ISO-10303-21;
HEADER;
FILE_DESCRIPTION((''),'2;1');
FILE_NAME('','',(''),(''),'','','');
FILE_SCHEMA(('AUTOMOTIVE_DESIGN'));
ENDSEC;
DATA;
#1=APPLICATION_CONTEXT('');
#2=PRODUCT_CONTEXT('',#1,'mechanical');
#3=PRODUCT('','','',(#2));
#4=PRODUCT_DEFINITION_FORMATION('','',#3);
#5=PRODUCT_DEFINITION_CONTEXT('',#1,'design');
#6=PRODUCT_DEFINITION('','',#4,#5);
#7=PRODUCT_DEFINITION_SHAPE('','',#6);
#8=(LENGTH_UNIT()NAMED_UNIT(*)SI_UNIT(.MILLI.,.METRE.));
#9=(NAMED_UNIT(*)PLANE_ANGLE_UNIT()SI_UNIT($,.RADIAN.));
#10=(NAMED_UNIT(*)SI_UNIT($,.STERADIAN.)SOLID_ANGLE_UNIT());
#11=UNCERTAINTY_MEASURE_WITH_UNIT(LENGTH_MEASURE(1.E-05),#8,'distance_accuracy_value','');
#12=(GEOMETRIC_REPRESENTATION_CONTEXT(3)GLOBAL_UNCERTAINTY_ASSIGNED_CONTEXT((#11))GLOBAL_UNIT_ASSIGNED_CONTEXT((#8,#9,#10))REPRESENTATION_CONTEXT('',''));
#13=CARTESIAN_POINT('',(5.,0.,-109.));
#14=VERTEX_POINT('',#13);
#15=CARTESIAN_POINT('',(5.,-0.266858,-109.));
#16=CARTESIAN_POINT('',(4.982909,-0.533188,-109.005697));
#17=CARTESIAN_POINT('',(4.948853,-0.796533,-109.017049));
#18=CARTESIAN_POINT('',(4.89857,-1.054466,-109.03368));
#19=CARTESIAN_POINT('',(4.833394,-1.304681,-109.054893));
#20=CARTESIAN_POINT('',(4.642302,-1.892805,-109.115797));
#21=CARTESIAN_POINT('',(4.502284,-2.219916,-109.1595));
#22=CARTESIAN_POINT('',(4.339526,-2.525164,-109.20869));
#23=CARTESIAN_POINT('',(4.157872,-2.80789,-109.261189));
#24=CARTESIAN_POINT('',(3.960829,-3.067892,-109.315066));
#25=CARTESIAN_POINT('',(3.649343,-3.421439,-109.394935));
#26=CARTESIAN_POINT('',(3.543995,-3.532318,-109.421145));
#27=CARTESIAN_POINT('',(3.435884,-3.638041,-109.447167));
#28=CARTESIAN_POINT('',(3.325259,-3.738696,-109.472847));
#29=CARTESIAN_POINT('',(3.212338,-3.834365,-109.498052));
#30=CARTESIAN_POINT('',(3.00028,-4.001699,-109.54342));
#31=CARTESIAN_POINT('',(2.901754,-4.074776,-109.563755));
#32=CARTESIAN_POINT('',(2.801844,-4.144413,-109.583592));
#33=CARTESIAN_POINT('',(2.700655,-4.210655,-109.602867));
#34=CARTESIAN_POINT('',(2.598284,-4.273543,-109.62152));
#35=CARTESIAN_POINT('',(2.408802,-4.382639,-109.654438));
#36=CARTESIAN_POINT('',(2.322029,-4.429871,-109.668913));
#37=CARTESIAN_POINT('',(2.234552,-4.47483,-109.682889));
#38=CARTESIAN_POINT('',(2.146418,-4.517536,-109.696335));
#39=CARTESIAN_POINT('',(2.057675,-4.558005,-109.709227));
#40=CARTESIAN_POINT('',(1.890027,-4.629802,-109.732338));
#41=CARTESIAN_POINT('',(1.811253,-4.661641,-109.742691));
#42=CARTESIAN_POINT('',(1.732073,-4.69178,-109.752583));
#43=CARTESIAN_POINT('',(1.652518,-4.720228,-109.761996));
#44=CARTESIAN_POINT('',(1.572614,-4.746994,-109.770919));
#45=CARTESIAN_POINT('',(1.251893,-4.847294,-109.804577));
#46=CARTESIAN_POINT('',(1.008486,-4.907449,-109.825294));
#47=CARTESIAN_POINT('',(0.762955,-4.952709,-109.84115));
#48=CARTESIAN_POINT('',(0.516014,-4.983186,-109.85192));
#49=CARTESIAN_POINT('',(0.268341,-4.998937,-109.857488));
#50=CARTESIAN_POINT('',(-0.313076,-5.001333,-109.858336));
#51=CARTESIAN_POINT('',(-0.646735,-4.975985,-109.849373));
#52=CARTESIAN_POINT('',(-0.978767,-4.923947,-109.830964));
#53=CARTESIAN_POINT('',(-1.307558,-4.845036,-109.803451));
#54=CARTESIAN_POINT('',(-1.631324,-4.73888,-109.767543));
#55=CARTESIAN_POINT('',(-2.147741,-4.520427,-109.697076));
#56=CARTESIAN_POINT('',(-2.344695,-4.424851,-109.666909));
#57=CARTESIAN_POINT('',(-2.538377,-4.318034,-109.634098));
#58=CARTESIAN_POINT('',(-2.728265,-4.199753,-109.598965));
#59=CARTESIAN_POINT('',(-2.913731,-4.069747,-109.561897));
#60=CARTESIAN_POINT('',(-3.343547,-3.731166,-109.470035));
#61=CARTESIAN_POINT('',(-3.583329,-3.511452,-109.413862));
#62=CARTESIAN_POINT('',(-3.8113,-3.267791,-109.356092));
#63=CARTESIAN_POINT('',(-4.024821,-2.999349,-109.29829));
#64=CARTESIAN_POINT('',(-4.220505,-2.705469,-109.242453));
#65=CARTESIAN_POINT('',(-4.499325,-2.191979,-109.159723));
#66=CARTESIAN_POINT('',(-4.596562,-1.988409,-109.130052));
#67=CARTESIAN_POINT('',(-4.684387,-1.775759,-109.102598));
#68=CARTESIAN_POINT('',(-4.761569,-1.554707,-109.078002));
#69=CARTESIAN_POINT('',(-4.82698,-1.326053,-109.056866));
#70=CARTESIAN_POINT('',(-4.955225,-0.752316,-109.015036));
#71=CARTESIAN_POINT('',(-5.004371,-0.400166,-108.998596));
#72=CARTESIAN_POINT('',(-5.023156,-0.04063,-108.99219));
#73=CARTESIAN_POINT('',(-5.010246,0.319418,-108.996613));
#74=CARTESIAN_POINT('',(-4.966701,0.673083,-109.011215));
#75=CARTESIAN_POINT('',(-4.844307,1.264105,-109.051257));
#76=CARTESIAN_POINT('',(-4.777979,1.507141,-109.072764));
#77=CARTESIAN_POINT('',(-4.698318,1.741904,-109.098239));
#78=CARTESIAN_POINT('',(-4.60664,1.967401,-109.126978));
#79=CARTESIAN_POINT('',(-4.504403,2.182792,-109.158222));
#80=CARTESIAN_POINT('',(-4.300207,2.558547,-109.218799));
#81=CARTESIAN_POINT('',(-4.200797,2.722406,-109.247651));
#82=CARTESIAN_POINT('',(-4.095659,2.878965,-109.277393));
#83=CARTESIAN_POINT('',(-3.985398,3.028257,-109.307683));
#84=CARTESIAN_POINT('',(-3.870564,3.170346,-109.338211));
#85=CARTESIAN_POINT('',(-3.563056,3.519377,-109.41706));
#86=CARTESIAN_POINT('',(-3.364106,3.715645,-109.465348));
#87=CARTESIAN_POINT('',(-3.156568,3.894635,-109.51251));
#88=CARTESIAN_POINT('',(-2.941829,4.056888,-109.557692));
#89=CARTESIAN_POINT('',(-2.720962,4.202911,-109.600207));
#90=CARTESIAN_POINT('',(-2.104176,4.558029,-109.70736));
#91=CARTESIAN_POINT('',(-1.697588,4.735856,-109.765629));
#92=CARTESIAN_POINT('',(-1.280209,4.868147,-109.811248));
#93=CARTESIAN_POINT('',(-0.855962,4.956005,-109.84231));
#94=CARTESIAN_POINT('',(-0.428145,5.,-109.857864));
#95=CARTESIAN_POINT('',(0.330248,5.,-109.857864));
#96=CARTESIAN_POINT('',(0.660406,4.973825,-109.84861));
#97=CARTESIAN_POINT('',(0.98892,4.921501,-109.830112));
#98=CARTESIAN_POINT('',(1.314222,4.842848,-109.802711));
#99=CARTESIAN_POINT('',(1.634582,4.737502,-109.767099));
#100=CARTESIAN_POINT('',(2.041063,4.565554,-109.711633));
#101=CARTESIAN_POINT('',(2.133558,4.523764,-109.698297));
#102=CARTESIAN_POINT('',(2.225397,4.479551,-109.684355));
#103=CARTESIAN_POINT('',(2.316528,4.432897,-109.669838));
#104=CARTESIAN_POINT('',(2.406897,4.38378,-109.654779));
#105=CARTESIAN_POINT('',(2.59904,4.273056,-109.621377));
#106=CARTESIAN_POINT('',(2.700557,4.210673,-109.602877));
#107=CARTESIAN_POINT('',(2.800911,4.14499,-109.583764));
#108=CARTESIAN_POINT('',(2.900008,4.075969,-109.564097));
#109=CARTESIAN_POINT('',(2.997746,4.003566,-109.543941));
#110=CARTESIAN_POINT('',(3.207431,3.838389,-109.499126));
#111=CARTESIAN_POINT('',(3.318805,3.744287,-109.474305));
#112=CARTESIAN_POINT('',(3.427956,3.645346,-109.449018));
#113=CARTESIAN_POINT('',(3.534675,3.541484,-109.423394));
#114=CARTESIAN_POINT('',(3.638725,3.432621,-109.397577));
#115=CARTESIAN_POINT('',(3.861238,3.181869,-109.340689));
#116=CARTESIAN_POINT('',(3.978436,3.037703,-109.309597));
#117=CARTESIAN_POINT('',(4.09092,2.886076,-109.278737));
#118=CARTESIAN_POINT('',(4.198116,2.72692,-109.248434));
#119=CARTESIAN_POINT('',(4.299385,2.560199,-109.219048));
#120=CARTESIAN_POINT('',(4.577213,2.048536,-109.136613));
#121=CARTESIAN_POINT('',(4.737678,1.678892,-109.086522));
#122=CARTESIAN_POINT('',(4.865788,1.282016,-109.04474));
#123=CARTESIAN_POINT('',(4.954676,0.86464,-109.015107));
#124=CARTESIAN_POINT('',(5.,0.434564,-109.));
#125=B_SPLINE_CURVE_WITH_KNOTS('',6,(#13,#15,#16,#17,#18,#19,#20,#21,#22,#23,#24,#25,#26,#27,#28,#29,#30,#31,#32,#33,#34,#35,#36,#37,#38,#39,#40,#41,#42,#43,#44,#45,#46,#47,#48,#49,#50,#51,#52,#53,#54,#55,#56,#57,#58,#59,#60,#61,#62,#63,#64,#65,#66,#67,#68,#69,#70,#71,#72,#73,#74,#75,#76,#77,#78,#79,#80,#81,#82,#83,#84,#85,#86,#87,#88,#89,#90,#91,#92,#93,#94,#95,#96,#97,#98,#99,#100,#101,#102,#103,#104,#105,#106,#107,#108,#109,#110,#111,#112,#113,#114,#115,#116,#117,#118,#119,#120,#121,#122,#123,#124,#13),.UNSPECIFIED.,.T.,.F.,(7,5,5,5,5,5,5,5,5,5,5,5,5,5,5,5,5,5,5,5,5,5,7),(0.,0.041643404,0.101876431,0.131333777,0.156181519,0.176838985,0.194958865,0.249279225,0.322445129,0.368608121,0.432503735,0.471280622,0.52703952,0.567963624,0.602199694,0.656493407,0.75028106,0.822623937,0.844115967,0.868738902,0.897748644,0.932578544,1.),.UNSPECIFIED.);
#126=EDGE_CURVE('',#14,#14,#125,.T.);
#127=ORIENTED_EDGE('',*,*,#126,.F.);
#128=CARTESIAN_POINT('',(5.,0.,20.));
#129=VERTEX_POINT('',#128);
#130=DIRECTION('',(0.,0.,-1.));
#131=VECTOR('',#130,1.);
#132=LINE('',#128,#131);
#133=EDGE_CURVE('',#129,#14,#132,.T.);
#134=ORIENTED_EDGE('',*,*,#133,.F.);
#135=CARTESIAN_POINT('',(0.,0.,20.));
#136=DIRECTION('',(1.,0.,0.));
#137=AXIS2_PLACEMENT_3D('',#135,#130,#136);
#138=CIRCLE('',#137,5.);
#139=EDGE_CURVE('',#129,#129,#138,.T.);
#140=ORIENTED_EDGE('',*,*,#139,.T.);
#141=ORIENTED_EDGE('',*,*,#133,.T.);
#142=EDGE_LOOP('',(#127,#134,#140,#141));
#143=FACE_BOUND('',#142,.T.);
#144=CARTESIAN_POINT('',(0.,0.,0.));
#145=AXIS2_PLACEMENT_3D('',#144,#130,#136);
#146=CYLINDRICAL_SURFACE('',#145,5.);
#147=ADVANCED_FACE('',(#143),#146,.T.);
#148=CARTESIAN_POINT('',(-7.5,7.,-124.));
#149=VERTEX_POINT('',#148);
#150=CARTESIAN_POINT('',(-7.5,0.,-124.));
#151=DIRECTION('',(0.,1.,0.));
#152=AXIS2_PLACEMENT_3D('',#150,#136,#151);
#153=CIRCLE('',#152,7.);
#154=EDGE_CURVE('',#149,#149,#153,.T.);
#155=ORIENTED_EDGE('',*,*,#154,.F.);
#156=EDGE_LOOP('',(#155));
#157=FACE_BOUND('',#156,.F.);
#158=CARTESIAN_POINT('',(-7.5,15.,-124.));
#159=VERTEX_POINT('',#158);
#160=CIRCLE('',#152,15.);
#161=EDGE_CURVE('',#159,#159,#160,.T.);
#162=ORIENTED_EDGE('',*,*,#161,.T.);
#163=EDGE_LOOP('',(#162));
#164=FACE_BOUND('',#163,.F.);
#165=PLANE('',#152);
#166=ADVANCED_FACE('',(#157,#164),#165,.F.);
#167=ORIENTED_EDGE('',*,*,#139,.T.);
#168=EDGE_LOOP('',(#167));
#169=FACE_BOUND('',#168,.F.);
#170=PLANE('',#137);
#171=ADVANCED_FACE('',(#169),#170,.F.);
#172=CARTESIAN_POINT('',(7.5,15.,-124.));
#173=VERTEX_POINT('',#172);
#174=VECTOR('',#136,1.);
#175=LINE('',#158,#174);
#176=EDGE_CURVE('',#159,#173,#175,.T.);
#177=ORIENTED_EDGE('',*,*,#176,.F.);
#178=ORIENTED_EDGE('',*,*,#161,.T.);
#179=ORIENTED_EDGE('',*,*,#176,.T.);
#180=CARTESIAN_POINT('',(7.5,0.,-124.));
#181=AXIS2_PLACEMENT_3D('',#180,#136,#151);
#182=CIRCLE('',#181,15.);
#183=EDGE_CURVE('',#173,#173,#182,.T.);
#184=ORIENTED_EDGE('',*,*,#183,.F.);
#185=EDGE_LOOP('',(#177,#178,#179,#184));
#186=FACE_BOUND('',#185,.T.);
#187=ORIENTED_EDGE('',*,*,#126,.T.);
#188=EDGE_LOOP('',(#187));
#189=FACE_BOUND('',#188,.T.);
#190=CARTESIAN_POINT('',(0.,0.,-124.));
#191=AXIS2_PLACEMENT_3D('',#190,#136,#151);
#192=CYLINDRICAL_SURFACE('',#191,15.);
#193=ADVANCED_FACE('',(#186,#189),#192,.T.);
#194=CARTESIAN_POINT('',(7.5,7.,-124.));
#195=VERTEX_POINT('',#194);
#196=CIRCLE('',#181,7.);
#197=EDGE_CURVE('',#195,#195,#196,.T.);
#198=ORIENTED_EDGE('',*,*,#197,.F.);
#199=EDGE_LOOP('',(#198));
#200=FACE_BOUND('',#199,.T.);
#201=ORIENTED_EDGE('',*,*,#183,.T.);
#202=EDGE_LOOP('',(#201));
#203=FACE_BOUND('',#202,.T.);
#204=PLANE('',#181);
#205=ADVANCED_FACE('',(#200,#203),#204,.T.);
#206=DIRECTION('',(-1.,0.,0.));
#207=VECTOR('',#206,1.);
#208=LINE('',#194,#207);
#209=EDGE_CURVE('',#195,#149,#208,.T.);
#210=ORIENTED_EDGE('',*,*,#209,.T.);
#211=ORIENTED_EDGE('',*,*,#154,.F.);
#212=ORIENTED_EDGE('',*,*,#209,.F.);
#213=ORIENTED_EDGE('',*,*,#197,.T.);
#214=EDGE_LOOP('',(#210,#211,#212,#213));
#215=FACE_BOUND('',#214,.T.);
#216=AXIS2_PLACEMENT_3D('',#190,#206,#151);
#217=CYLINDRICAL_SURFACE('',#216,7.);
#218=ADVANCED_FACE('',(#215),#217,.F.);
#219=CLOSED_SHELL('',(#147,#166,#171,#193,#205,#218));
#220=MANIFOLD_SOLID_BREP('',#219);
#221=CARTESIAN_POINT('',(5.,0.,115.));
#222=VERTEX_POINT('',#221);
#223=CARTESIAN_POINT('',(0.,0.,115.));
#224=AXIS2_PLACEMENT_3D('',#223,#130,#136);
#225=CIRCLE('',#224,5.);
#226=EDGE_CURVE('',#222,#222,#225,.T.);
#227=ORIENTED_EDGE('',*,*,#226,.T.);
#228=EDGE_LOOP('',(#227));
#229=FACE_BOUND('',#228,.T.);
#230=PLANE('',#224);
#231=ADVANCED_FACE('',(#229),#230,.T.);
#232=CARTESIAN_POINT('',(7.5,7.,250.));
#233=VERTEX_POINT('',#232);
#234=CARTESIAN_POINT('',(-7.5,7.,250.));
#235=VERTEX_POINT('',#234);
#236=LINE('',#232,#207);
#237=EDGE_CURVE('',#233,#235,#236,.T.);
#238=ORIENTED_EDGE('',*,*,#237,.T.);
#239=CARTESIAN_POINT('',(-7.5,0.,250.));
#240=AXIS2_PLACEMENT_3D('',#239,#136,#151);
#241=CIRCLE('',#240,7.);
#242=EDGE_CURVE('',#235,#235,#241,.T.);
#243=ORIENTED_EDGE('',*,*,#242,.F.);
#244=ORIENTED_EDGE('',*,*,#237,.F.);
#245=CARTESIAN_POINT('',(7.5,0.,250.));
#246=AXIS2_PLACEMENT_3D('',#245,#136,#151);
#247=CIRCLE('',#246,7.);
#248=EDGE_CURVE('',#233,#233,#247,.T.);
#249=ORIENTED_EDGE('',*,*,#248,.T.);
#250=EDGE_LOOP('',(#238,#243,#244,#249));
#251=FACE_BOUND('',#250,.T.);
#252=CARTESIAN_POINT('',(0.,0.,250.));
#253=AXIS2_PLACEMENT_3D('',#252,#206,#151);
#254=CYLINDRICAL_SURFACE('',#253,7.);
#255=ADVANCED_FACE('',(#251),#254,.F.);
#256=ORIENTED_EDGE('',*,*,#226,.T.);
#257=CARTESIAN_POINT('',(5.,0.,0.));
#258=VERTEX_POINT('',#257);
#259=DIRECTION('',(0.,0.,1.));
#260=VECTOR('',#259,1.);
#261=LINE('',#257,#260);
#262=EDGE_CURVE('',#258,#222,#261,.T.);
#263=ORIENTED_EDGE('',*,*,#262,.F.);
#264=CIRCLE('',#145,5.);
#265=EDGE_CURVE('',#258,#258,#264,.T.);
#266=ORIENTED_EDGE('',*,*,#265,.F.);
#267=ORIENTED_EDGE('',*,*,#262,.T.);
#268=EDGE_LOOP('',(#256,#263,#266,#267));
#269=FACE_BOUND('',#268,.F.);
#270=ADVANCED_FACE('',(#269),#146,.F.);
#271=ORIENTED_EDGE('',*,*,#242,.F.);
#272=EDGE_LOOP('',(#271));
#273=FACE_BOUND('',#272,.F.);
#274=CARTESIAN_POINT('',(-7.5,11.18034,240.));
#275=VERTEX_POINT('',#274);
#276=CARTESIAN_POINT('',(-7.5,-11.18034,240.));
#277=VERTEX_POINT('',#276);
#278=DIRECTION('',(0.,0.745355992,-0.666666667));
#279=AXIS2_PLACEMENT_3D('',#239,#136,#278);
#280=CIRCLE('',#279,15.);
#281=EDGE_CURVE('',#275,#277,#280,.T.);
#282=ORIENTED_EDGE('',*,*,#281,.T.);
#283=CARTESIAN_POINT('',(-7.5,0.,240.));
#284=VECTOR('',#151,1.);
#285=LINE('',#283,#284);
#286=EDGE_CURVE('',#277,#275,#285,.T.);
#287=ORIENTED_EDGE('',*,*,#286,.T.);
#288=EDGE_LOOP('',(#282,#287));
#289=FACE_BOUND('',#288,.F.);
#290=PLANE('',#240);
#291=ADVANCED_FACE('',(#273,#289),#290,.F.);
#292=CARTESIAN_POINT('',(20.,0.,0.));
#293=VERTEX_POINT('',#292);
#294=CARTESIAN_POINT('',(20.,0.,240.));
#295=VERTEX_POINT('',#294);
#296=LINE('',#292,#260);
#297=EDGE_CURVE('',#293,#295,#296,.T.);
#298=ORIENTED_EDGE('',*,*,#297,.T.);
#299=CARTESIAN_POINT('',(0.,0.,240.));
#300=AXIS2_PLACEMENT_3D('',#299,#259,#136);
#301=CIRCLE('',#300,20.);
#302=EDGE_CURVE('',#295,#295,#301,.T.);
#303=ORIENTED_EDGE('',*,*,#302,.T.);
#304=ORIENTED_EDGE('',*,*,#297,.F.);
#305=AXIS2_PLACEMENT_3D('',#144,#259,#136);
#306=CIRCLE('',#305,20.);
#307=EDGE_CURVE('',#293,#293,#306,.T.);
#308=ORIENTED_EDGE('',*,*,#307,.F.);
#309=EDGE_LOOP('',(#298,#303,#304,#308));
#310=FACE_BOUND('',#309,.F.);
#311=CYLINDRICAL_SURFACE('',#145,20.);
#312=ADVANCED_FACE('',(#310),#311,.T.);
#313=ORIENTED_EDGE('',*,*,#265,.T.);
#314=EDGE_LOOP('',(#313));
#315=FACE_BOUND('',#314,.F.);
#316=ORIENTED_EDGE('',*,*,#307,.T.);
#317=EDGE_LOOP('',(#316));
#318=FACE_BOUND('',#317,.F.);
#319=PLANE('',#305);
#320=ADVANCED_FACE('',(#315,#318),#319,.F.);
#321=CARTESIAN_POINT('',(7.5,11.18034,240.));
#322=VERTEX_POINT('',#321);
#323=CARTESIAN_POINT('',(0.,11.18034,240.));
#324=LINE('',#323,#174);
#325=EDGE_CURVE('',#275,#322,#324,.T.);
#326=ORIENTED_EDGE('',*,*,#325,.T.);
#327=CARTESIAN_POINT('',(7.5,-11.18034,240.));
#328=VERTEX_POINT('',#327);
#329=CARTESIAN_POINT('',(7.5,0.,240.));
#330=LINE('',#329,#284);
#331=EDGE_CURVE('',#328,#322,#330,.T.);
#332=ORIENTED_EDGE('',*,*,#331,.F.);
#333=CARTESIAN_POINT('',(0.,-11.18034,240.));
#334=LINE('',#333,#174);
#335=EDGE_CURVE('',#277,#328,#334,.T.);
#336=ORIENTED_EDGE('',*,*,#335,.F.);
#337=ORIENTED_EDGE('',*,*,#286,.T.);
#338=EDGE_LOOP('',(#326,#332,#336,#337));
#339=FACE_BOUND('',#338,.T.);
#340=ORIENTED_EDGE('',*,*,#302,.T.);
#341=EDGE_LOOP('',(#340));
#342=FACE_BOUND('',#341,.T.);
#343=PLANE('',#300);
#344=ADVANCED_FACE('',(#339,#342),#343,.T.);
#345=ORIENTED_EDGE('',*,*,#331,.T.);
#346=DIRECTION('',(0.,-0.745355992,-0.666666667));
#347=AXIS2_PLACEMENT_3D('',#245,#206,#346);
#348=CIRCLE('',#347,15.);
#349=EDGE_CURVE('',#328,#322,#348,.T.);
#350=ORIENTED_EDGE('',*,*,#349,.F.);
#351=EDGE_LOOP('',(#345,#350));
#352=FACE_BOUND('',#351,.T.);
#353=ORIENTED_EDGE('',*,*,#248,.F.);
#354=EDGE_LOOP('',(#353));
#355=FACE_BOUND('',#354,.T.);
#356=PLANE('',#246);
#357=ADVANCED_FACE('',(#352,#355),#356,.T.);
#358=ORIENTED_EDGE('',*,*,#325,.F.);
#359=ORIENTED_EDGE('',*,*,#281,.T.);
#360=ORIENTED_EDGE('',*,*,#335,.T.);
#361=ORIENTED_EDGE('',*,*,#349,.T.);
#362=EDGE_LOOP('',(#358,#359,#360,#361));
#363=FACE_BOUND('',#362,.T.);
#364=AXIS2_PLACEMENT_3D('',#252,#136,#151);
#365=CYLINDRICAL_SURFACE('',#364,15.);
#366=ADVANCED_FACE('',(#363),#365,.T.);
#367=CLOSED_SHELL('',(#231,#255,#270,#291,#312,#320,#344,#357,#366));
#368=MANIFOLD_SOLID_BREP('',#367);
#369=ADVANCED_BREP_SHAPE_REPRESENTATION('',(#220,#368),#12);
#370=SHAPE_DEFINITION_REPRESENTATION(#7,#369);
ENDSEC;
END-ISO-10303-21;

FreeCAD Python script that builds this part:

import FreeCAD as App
import Part
import Sketcher
from FreeCAD import Vector
Q = App.Units.Quantity

doc = App.newDocument("Part")
body = doc.addObject("PartDesign::Body", "Body")

# Sketch on XY plane
sketch1 = doc.addObject("Sketcher::SketchObject", "Sketch")
body.addObject(sketch1)
sketch1.AttachmentSupport = (doc.XY_Plane, [""])
sketch1.MapMode = "FlatFace"
sketch1.addGeometry(Part.Circle(Vector(0, 0, 0), Vector(0, 0, 1), 20), False)
sketch1.addConstraint([
    Sketcher.Constraint("Coincident", 0, 3, -1, 1),
    Sketcher.Constraint("Diameter", 0, Q("40 mm")),
])
pad1 = doc.addObject("PartDesign::Pad", "Pad")
body.addObject(pad1)
pad1.Profile = sketch1
pad1.Length = 240

# Sketch on YZ plane
sketch2 = doc.addObject("Sketcher::SketchObject", "Sketch001")
body.addObject(sketch2)
sketch2.AttachmentSupport = (doc.YZ_Plane, [""])
sketch2.MapMode = "FlatFace"
sketch2.addGeometry([
    Part.Circle(Vector(0, 250, 0), Vector(0, 0, 1), 15),
    Part.Circle(Vector(0, 250, 0), Vector(0, 0, 1), 7),
], False)
sketch2.addConstraint([
    Sketcher.Constraint("Coincident", 1, 3, 0, 3),
    Sketcher.Constraint("PointOnObject", 0, 3, -2),
    Sketcher.Constraint("Diameter", 0, Q("30 mm")),
    Sketcher.Constraint("Diameter", 1, Q("14 mm")),
    Sketcher.Constraint("DistanceY", -1, 1, 0, 3, Q("250 mm")),
])
pad2 = doc.addObject("PartDesign::Pad", "Pad001")
body.addObject(pad2)
pad2.Profile = sketch2
pad2.Length = 15
pad2.Midplane = True

# Sketch on XY plane
sketch3 = doc.addObject("Sketcher::SketchObject", "Sketch002")
body.addObject(sketch3)
sketch3.AttachmentSupport = (doc.XY_Plane, [""])
sketch3.MapMode = "FlatFace"
sketch3.addGeometry(Part.Circle(Vector(0, 0, 0), Vector(0, 0, 1), 5), False)
sketch3.addConstraint([
    Sketcher.Constraint("Coincident", 0, 3, -1, 1),
    Sketcher.Constraint("Diameter", 0, Q("10 mm")),
])
pocket1 = doc.addObject("PartDesign::Pocket", "Pocket")
body.addObject(pocket1)
pocket1.Profile = sketch3
pocket1.Length = 115
pocket1.Reversed = True
body2 = doc.addObject("PartDesign::Body", "Body001")

# Sketch on XY plane
sketch4 = doc.addObject("Sketcher::SketchObject", "Sketch003")
body2.addObject(sketch4)
sketch4.AttachmentSupport = (doc.getObject("XY_Plane001"), [""])
sketch4.MapMode = "FlatFace"
sketch4.addGeometry(Part.Circle(Vector(0, 0, 0), Vector(0, 0, 1), 5), False)
sketch4.addConstraint([
    Sketcher.Constraint("Coincident", 0, 3, -1, 1),
    Sketcher.Constraint("Diameter", 0, Q("10 mm")),
])
pad3 = doc.addObject("PartDesign::Pad", "Pad002")
body2.addObject(pad3)
pad3.Profile = sketch4
pad3.Type = "TwoLengths"
pad3.Length = 114
pad3.Length2 = 20
pad3.Reversed = True

# Sketch on YZ plane
sketch5 = doc.addObject("Sketcher::SketchObject", "Sketch004")
body2.addObject(sketch5)
sketch5.AttachmentSupport = (doc.getObject("YZ_Plane001"), [""])
sketch5.MapMode = "FlatFace"
sketch5.addGeometry([
    Part.Circle(Vector(0, -124, 0), Vector(0, 0, 1), 15),
    Part.Circle(Vector(0, -124, 0), Vector(0, 0, 1), 7),
], False)
sketch5.addConstraint([
    Sketcher.Constraint("Coincident", 1, 3, 0, 3),
    Sketcher.Constraint("PointOnObject", 0, 3, -2),
    Sketcher.Constraint("Diameter", 0, Q("30 mm")),
    Sketcher.Constraint("Diameter", 1, Q("14 mm")),
    Sketcher.Constraint("DistanceY", 0, 3, -1, 1, Q("124 mm")),
])
pad4 = doc.addObject("PartDesign::Pad", "Pad003")
body2.addObject(pad4)
pad4.Profile = sketch5
pad4.Length = 15
pad4.Midplane = True

doc.recompute()
